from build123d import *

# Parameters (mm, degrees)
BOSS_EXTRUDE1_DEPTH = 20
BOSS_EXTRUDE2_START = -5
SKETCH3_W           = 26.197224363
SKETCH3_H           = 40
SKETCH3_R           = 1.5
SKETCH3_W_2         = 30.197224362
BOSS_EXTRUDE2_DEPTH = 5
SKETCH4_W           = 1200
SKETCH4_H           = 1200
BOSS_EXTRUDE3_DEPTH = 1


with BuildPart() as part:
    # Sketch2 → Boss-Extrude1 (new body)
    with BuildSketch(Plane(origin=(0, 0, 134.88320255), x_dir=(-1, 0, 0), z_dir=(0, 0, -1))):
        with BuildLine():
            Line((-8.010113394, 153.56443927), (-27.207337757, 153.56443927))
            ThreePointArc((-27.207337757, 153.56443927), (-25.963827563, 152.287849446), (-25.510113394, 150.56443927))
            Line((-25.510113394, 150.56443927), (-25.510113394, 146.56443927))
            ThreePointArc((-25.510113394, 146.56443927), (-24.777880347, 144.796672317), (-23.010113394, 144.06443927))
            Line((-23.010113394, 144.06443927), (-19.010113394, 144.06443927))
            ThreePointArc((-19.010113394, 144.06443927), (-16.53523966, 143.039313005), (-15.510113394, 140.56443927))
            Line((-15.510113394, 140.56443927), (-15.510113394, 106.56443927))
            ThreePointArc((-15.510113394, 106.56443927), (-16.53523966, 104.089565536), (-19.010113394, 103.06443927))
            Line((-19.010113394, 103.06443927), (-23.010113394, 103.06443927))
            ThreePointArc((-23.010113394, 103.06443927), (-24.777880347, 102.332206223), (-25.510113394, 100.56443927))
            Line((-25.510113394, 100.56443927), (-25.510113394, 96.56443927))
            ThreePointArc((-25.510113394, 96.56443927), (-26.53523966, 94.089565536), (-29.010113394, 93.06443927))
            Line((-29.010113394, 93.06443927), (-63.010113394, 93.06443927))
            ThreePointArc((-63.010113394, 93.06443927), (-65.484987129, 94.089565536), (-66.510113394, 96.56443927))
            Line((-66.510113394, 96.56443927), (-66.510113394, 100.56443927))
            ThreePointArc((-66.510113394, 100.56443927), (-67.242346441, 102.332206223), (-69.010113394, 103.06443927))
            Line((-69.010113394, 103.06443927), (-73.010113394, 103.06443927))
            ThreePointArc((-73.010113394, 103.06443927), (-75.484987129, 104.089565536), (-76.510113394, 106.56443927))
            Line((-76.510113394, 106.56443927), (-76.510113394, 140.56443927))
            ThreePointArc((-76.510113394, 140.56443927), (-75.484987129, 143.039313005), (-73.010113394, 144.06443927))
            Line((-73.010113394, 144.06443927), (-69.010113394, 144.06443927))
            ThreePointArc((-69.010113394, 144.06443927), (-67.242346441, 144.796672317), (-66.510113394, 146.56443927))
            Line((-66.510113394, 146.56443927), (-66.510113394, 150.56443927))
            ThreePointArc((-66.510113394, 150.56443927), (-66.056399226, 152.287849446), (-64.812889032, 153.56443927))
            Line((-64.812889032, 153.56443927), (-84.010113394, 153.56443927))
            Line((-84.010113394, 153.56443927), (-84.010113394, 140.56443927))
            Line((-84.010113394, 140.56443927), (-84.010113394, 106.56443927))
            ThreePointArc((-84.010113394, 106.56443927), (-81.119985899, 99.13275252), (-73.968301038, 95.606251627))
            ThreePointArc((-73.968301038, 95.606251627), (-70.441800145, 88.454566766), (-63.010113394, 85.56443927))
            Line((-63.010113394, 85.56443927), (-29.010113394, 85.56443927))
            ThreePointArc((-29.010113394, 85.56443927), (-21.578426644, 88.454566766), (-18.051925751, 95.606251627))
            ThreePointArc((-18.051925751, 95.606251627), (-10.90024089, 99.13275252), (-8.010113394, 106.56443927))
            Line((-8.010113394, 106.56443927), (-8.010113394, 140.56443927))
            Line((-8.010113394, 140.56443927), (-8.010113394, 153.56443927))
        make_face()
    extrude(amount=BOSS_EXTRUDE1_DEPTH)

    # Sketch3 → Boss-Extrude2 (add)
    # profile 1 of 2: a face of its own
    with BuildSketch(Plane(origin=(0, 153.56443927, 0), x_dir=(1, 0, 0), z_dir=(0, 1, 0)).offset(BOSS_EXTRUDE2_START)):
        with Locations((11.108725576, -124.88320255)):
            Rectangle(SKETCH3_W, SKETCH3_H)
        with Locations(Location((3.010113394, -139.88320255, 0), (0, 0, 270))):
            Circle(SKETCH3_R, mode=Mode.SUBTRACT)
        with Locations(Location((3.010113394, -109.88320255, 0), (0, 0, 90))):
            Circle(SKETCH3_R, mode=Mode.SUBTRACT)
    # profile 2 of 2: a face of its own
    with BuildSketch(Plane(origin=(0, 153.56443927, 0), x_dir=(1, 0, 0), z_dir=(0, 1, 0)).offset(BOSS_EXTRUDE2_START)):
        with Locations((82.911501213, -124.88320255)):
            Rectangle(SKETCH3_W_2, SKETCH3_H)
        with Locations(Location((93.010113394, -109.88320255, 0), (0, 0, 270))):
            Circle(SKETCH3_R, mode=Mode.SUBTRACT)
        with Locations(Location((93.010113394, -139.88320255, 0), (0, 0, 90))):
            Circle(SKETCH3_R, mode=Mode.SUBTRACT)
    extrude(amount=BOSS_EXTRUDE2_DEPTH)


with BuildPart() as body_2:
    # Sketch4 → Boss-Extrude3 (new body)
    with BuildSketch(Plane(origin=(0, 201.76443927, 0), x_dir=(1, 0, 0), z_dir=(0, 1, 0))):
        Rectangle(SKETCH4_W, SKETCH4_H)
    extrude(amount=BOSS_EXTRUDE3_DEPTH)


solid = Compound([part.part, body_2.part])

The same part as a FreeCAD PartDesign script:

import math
import FreeCAD as App
import Part
import Sketcher
Q = App.Units.Quantity


def add_polygon(sketch, points):
    """Adds a closed chain of lines whose ends are joined by coincident constraints."""
    first, n = sketch.GeometryCount, len(points)
    for a, b in zip(points, points[1:] + points[:1]):
        sketch.addGeometry(Part.LineSegment(App.Vector(*a, 0), App.Vector(*b, 0)), False)
    for i in range(n):
        sketch.addConstraint(Sketcher.Constraint("Coincident", first + i, 2, first + (i + 1) % n, 1))

doc = App.newDocument("Part")
body = doc.addObject("PartDesign::Body", "Body")

# Sketch on XY plane
sketch1 = body.newObject("Sketcher::SketchObject", "Sketch")
sketch1.AttachmentSupport = (doc.getObject("XY_Plane"), [""])
sketch1.MapMode = "FlatFace"
sketch1.AttachmentOffset = App.Placement(App.Vector(0, 0, 134.883203), App.Rotation())
sketch1.addGeometry(Part.LineSegment(App.Vector(8, 153.6, 0), App.Vector(27.2, 153.6, 0)), False)
sketch1.addGeometry(Part.ArcOfCircle(Part.Circle(App.Vector(29, 150.6, 0), App.Vector(0, 0, 1), 3.5), math.radians(121), math.radians(180)), False)
sketch1.addGeometry(Part.LineSegment(App.Vector(25.5, 150.6, 0), App.Vector(25.5, 146.6, 0)), False)
sketch1.addGeometry(Part.ArcOfCircle(Part.Circle(App.Vector(23, 146.6, 0), App.Vector(0, 0, 1), 2.5), math.radians(-90), math.radians(0)), False)
sketch1.addGeometry(Part.LineSegment(App.Vector(23, 144.1, 0), App.Vector(19, 144.1, 0)), False)
sketch1.addGeometry(Part.ArcOfCircle(Part.Circle(App.Vector(19, 140.6, 0), App.Vector(0, 0, 1), 3.5), math.radians(90), math.radians(180)), False)
sketch1.addGeometry(Part.LineSegment(App.Vector(15.5, 140.6, 0), App.Vector(15.5, 106.6, 0)), False)
sketch1.addGeometry(Part.ArcOfCircle(Part.Circle(App.Vector(19, 106.6, 0), App.Vector(0, 0, 1), 3.5), math.radians(-180), math.radians(-90)), False)
sketch1.addGeometry(Part.LineSegment(App.Vector(19, 103.1, 0), App.Vector(23, 103.1, 0)), False)
sketch1.addGeometry(Part.ArcOfCircle(Part.Circle(App.Vector(23, 100.6, 0), App.Vector(0, 0, 1), 2.5), math.radians(0), math.radians(90)), False)
sketch1.addGeometry(Part.LineSegment(App.Vector(25.5, 100.6, 0), App.Vector(25.5, 96.6, 0)), False)
sketch1.addGeometry(Part.ArcOfCircle(Part.Circle(App.Vector(29, 96.6, 0), App.Vector(0, 0, 1), 3.5), math.radians(-180), math.radians(-90)), False)
sketch1.addGeometry(Part.LineSegment(App.Vector(29, 93.1, 0), App.Vector(63, 93.1, 0)), False)
sketch1.addGeometry(Part.ArcOfCircle(Part.Circle(App.Vector(63, 96.6, 0), App.Vector(0, 0, 1), 3.5), math.radians(-90), math.radians(0)), False)
sketch1.addGeometry(Part.LineSegment(App.Vector(66.5, 96.6, 0), App.Vector(66.5, 100.6, 0)), False)
sketch1.addGeometry(Part.ArcOfCircle(Part.Circle(App.Vector(69, 100.6, 0), App.Vector(0, 0, 1), 2.5), math.radians(90), math.radians(180)), False)
sketch1.addGeometry(Part.LineSegment(App.Vector(69, 103.1, 0), App.Vector(73, 103.1, 0)), False)
sketch1.addGeometry(Part.ArcOfCircle(Part.Circle(App.Vector(73, 106.6, 0), App.Vector(0, 0, 1), 3.5), math.radians(-90), math.radians(0)), False)
sketch1.addGeometry(Part.LineSegment(App.Vector(76.5, 106.6, 0), App.Vector(76.5, 140.6, 0)), False)
sketch1.addGeometry(Part.ArcOfCircle(Part.Circle(App.Vector(73, 140.6, 0), App.Vector(0, 0, 1), 3.5), math.radians(0), math.radians(90)), False)
sketch1.addGeometry(Part.LineSegment(App.Vector(73, 144.1, 0), App.Vector(69, 144.1, 0)), False)
sketch1.addGeometry(Part.ArcOfCircle(Part.Circle(App.Vector(69, 146.6, 0), App.Vector(0, 0, 1), 2.5), math.radians(180), math.radians(270)), False)
sketch1.addGeometry(Part.LineSegment(App.Vector(66.5, 146.6, 0), App.Vector(66.5, 150.6, 0)), False)
sketch1.addGeometry(Part.ArcOfCircle(Part.Circle(App.Vector(63, 150.6, 0), App.Vector(0, 0, 1), 3.5), math.radians(0), math.radians(59)), False)
sketch1.addGeometry(Part.LineSegment(App.Vector(64.8, 153.6, 0), App.Vector(84, 153.6, 0)), False)
sketch1.addGeometry(Part.LineSegment(App.Vector(84, 153.6, 0), App.Vector(84, 106.6, 0)), False)
sketch1.addGeometry(Part.ArcOfCircle(Part.Circle(App.Vector(73, 106.6, 0), App.Vector(0, 0, 1), 11), math.radians(-85), math.radians(0)), False)
sketch1.addGeometry(Part.ArcOfCircle(Part.Circle(App.Vector(63, 96.6, 0), App.Vector(0, 0, 1), 11), math.radians(-90), math.radians(-5)), False)
sketch1.addGeometry(Part.LineSegment(App.Vector(63, 85.6, 0), App.Vector(29, 85.6, 0)), False)
sketch1.addGeometry(Part.ArcOfCircle(Part.Circle(App.Vector(29, 96.6, 0), App.Vector(0, 0, 1), 11), math.radians(-175), math.radians(-90)), False)
sketch1.addGeometry(Part.ArcOfCircle(Part.Circle(App.Vector(19, 106.6, 0), App.Vector(0, 0, 1), 11), math.radians(-180), math.radians(-95)), False)
sketch1.addGeometry(Part.LineSegment(App.Vector(8, 106.6, 0), App.Vector(8, 153.6, 0)), False)
sketch1.addConstraint(Sketcher.Constraint("Coincident", 0, 2, 1, 1))
sketch1.addConstraint(Sketcher.Constraint("Tangent", 1, 2, 2, 1))
sketch1.addConstraint(Sketcher.Constraint("Tangent", 2, 2, 3, 2))
sketch1.addConstraint(Sketcher.Constraint("Tangent", 3, 1, 4, 1))
sketch1.addConstraint(Sketcher.Constraint("Tangent", 4, 2, 5, 1))
sketch1.addConstraint(Sketcher.Constraint("Tangent", 5, 2, 6, 1))
sketch1.addConstraint(Sketcher.Constraint("Tangent", 6, 2, 7, 1))
sketch1.addConstraint(Sketcher.Constraint("Tangent", 7, 2, 8, 1))
sketch1.addConstraint(Sketcher.Constraint("Tangent", 8, 2, 9, 2))
sketch1.addConstraint(Sketcher.Constraint("Tangent", 9, 1, 10, 1))
sketch1.addConstraint(Sketcher.Constraint("Tangent", 10, 2, 11, 1))
sketch1.addConstraint(Sketcher.Constraint("Tangent", 11, 2, 12, 1))
sketch1.addConstraint(Sketcher.Constraint("Tangent", 12, 2, 13, 1))
sketch1.addConstraint(Sketcher.Constraint("Tangent", 13, 2, 14, 1))
sketch1.addConstraint(Sketcher.Constraint("Tangent", 14, 2, 15, 2))
sketch1.addConstraint(Sketcher.Constraint("Tangent", 15, 1, 16, 1))
sketch1.addConstraint(Sketcher.Constraint("Tangent", 16, 2, 17, 1))
sketch1.addConstraint(Sketcher.Constraint("Tangent", 17, 2, 18, 1))
sketch1.addConstraint(Sketcher.Constraint("Tangent", 18, 2, 19, 1))
sketch1.addConstraint(Sketcher.Constraint("Tangent", 19, 2, 20, 1))
sketch1.addConstraint(Sketcher.Constraint("Tangent", 20, 2, 21, 2))
sketch1.addConstraint(Sketcher.Constraint("Tangent", 21, 1, 22, 1))
sketch1.addConstraint(Sketcher.Constraint("Tangent", 22, 2, 23, 1))
sketch1.addConstraint(Sketcher.Constraint("Coincident", 23, 2, 24, 1))
sketch1.addConstraint(Sketcher.Constraint("Coincident", 24, 2, 25, 1))
sketch1.addConstraint(Sketcher.Constraint("Tangent", 25, 2, 26, 2))
sketch1.addConstraint(Sketcher.Constraint("Coincident", 26, 1, 27, 2))
sketch1.addConstraint(Sketcher.Constraint("Tangent", 27, 1, 28, 1))
sketch1.addConstraint(Sketcher.Constraint("Tangent", 28, 2, 29, 2))
sketch1.addConstraint(Sketcher.Constraint("Coincident", 29, 1, 30, 2))
sketch1.addConstraint(Sketcher.Constraint("Tangent", 30, 1, 31, 1))
sketch1.addConstraint(Sketcher.Constraint("Coincident", 31, 2, 0, 1))
sketch1.addConstraint(Sketcher.Constraint("Horizontal", 0))
sketch1.addConstraint(Sketcher.Constraint("Vertical", 2))
sketch1.addConstraint(Sketcher.Constraint("Horizontal", 4))
sketch1.addConstraint(Sketcher.Constraint("Vertical", 6))
sketch1.addConstraint(Sketcher.Constraint("Horizontal", 8))
sketch1.addConstraint(Sketcher.Constraint("Vertical", 10))
sketch1.addConstraint(Sketcher.Constraint("Horizontal", 12))
sketch1.addConstraint(Sketcher.Constraint("Vertical", 14))
sketch1.addConstraint(Sketcher.Constraint("Horizontal", 16))
sketch1.addConstraint(Sketcher.Constraint("Vertical", 18))
sketch1.addConstraint(Sketcher.Constraint("Horizontal", 20))
sketch1.addConstraint(Sketcher.Constraint("Vertical", 22))
sketch1.addConstraint(Sketcher.Constraint("Horizontal", 24))
sketch1.addConstraint(Sketcher.Constraint("Vertical", 25))
sketch1.addConstraint(Sketcher.Constraint("Horizontal", 28))
sketch1.addConstraint(Sketcher.Constraint("Vertical", 31))
sketch1.addConstraint(Sketcher.Constraint("Coincident", 26, 3, 17, 3))
sketch1.addConstraint(Sketcher.Constraint("Coincident", 27, 3, 13, 3))
sketch1.addConstraint(Sketcher.Constraint("Coincident", 29, 3, 11, 3))
sketch1.addConstraint(Sketcher.Constraint("Coincident", 30, 3, 7, 3))
sketch1.addConstraint(Sketcher.Constraint("Equal", 1, 5))
sketch1.addConstraint(Sketcher.Constraint("Equal", 5, 7))
sketch1.addConstraint(Sketcher.Constraint("Equal", 3, 9))
sketch1.addConstraint(Sketcher.Constraint("Equal", 7, 11))
sketch1.addConstraint(Sketcher.Constraint("Equal", 11, 13))
sketch1.addConstraint(Sketcher.Constraint("Equal", 9, 15))
sketch1.addConstraint(Sketcher.Constraint("Equal", 13, 17))
sketch1.addConstraint(Sketcher.Constraint("Equal", 17, 19))
sketch1.addConstraint(Sketcher.Constraint("Equal", 15, 21))
sketch1.addConstraint(Sketcher.Constraint("Equal", 19, 23))
sketch1.addConstraint(Sketcher.Constraint("Equal", 26, 27))
sketch1.addConstraint(Sketcher.Constraint("Equal", 29, 30))
sketch1.addConstraint(Sketcher.Constraint("Horizontal", 9, 3, 15, 3))
sketch1.addConstraint(Sketcher.Constraint("Horizontal", 5, 3, 19, 3))
sketch1.addConstraint(Sketcher.Constraint("Horizontal", 1, 3, 23, 3))
sketch1.addConstraint(Sketcher.Constraint("Horizontal", 0, 2, 23, 2))
sketch1.addConstraint(Sketcher.Constraint("Horizontal", 26, 1, 29, 1))
sketch1.addConstraint(Sketcher.Constraint("Vertical", 3, 3, 9, 3))
sketch1.addConstraint(Sketcher.Constraint("Vertical", 15, 3, 21, 3))
sketch1.addConstraint(Sketcher.Constraint("Equal", 20, 2))
sketch1.addConstraint(Sketcher.Constraint("Equal", 28, 6))
sketch1.addConstraint(Sketcher.Constraint("Equal", 2, 10))
sketch1.addConstraint(Sketcher.Constraint("Radius", 26, Q("11 mm")))
sketch1.addConstraint(Sketcher.Constraint("Radius", 1, Q("3.5 mm")))
sketch1.addConstraint(Sketcher.Constraint("Radius", 3, Q("2.5 mm")))
sketch1.addConstraint(Sketcher.Constraint("DistanceX", 4, 2, 4, 1, Q("4 mm")))
sketch1.addConstraint(Sketcher.Constraint("DistanceX", 12, 1, 12, 2, Q("34 mm")))
sketch1.addConstraint(Sketcher.Constraint("DistanceY", 25, 2, 25, 1, Q("47 mm")))
sketch1.addConstraint(Sketcher.Constraint("DistanceX", -1, 1, 26, 1, Q("73.968301 mm")))
sketch1.addConstraint(Sketcher.Constraint("DistanceY", -1, 1, 1, 3, Q("150.564439 mm")))
pad1 = body.newObject("PartDesign::Pad", "Pad")
pad1.Profile = sketch1
pad1.Length = 20
pad1.Reversed = True

# Sketch on XZ plane
sketch2 = body.newObject("Sketcher::SketchObject", "Sketch001")
sketch2.AttachmentSupport = (doc.getObject("XZ_Plane"), [""])
sketch2.MapMode = "FlatFace"
sketch2.AttachmentOffset = App.Placement(App.Vector(0, 0, -148.564439), App.Rotation())
add_polygon(sketch2, [(-2, 104.9), (-2, 144.9), (24.2, 144.9), (24.2, 104.9)])  # lines 0-3
sketch2.addGeometry(Part.Circle(App.Vector(3, 139.9, 0), App.Vector(0, 0, 1), 1.5), False)  # 4
sketch2.addGeometry(Part.Circle(App.Vector(3, 109.9, 0), App.Vector(0, 0, 1), 1.5), False)  # 5
add_polygon(sketch2, [(67.8, 104.9), (67.8, 144.9), (98, 144.9), (98, 104.9)])  # lines 6-9
sketch2.addGeometry(Part.Circle(App.Vector(93, 139.9, 0), App.Vector(0, 0, 1), 1.5), False)  # 10
sketch2.addGeometry(Part.Circle(App.Vector(93, 109.9, 0), App.Vector(0, 0, 1), 1.5), False)  # 11
sketch2.addConstraint(Sketcher.Constraint("Vertical", 0))
sketch2.addConstraint(Sketcher.Constraint("Horizontal", 1))
sketch2.addConstraint(Sketcher.Constraint("Vertical", 2))
sketch2.addConstraint(Sketcher.Constraint("Horizontal", 3))
sketch2.addConstraint(Sketcher.Constraint("Vertical", 6))
sketch2.addConstraint(Sketcher.Constraint("Horizontal", 7))
sketch2.addConstraint(Sketcher.Constraint("Vertical", 8))
sketch2.addConstraint(Sketcher.Constraint("Horizontal", 9))
sketch2.addConstraint(Sketcher.Constraint("Equal", 4, 5))
sketch2.addConstraint(Sketcher.Constraint("Equal", 5, 10))
sketch2.addConstraint(Sketcher.Constraint("Equal", 10, 11))
sketch2.addConstraint(Sketcher.Constraint("Horizontal", 4, 3, 10, 3))
sketch2.addConstraint(Sketcher.Constraint("Horizontal", 5, 3, 11, 3))
sketch2.addConstraint(Sketcher.Constraint("Horizontal", 1, 2, 6, 2))
sketch2.addConstraint(Sketcher.Constraint("Horizontal", 3, 2, 8, 2))
sketch2.addConstraint(Sketcher.Constraint("Vertical", 4, 3, 5, 3))
sketch2.addConstraint(Sketcher.Constraint("Vertical", 10, 3, 11, 3))
sketch2.addConstraint(Sketcher.Constraint("Diameter", 4, Q("3 mm")))
sketch2.addConstraint(Sketcher.Constraint("DistanceY", 0, 1, 0, 2, Q("40 mm")))
sketch2.addConstraint(Sketcher.Constraint("DistanceY", 5, 3, 4, 3, Q("30 mm")))
sketch2.addConstraint(Sketcher.Constraint("DistanceX", 4, 3, 10, 3, Q("90 mm")))
sketch2.addConstraint(Sketcher.Constraint("DistanceX", 0, 2, 4, 3, Q("5 mm")))
sketch2.addConstraint(Sketcher.Constraint("DistanceY", 4, 3, 0, 2, Q("5 mm")))
sketch2.addConstraint(Sketcher.Constraint("DistanceX", 10, 3, 7, 2, Q("5 mm")))
sketch2.addConstraint(Sketcher.Constraint("DistanceX", 1, 1, 1, 2, Q("26.197224 mm")))
sketch2.addConstraint(Sketcher.Constraint("DistanceX", 7, 1, 7, 2, Q("30.197224 mm")))
sketch2.addConstraint(Sketcher.Constraint("DistanceX", -1, 1, 6, 2, Q("67.812889 mm")))
sketch2.addConstraint(Sketcher.Constraint("DistanceY", -1, 1, 4, 3, Q("139.883203 mm")))
pad2 = body.newObject("PartDesign::Pad", "Pad001")
pad2.Profile = sketch2
pad2.Length = 5
pad2.Reversed = True
body2 = doc.addObject("PartDesign::Body", "Body001")

# Sketch on XZ plane
sketch3 = body2.newObject("Sketcher::SketchObject", "Sketch002")
sketch3.AttachmentSupport = (doc.getObject("XZ_Plane001"), [""])
sketch3.MapMode = "FlatFace"
sketch3.AttachmentOffset = App.Placement(App.Vector(0, 0, -201.764439), App.Rotation())
add_polygon(sketch3, [(-600, -600), (-600, 600), (600, 600), (600, -600)])  # lines 0-3
sketch3.addConstraint(Sketcher.Constraint("Vertical", 0))
sketch3.addConstraint(Sketcher.Constraint("Horizontal", 1))
sketch3.addConstraint(Sketcher.Constraint("Vertical", 2))
sketch3.addConstraint(Sketcher.Constraint("Horizontal", 3))
sketch3.addConstraint(Sketcher.Constraint("Symmetric", 0, 2, 2, 2, -1, 1))
sketch3.addConstraint(Sketcher.Constraint("Equal", 3, 0))
sketch3.addConstraint(Sketcher.Constraint("DistanceX", 1, 1, 1, 2, Q("1200 mm")))
pad3 = body2.newObject("PartDesign::Pad", "Pad002")
pad3.Profile = sketch3
pad3.Length = 1
pad3.Reversed = True

doc.recompute()
